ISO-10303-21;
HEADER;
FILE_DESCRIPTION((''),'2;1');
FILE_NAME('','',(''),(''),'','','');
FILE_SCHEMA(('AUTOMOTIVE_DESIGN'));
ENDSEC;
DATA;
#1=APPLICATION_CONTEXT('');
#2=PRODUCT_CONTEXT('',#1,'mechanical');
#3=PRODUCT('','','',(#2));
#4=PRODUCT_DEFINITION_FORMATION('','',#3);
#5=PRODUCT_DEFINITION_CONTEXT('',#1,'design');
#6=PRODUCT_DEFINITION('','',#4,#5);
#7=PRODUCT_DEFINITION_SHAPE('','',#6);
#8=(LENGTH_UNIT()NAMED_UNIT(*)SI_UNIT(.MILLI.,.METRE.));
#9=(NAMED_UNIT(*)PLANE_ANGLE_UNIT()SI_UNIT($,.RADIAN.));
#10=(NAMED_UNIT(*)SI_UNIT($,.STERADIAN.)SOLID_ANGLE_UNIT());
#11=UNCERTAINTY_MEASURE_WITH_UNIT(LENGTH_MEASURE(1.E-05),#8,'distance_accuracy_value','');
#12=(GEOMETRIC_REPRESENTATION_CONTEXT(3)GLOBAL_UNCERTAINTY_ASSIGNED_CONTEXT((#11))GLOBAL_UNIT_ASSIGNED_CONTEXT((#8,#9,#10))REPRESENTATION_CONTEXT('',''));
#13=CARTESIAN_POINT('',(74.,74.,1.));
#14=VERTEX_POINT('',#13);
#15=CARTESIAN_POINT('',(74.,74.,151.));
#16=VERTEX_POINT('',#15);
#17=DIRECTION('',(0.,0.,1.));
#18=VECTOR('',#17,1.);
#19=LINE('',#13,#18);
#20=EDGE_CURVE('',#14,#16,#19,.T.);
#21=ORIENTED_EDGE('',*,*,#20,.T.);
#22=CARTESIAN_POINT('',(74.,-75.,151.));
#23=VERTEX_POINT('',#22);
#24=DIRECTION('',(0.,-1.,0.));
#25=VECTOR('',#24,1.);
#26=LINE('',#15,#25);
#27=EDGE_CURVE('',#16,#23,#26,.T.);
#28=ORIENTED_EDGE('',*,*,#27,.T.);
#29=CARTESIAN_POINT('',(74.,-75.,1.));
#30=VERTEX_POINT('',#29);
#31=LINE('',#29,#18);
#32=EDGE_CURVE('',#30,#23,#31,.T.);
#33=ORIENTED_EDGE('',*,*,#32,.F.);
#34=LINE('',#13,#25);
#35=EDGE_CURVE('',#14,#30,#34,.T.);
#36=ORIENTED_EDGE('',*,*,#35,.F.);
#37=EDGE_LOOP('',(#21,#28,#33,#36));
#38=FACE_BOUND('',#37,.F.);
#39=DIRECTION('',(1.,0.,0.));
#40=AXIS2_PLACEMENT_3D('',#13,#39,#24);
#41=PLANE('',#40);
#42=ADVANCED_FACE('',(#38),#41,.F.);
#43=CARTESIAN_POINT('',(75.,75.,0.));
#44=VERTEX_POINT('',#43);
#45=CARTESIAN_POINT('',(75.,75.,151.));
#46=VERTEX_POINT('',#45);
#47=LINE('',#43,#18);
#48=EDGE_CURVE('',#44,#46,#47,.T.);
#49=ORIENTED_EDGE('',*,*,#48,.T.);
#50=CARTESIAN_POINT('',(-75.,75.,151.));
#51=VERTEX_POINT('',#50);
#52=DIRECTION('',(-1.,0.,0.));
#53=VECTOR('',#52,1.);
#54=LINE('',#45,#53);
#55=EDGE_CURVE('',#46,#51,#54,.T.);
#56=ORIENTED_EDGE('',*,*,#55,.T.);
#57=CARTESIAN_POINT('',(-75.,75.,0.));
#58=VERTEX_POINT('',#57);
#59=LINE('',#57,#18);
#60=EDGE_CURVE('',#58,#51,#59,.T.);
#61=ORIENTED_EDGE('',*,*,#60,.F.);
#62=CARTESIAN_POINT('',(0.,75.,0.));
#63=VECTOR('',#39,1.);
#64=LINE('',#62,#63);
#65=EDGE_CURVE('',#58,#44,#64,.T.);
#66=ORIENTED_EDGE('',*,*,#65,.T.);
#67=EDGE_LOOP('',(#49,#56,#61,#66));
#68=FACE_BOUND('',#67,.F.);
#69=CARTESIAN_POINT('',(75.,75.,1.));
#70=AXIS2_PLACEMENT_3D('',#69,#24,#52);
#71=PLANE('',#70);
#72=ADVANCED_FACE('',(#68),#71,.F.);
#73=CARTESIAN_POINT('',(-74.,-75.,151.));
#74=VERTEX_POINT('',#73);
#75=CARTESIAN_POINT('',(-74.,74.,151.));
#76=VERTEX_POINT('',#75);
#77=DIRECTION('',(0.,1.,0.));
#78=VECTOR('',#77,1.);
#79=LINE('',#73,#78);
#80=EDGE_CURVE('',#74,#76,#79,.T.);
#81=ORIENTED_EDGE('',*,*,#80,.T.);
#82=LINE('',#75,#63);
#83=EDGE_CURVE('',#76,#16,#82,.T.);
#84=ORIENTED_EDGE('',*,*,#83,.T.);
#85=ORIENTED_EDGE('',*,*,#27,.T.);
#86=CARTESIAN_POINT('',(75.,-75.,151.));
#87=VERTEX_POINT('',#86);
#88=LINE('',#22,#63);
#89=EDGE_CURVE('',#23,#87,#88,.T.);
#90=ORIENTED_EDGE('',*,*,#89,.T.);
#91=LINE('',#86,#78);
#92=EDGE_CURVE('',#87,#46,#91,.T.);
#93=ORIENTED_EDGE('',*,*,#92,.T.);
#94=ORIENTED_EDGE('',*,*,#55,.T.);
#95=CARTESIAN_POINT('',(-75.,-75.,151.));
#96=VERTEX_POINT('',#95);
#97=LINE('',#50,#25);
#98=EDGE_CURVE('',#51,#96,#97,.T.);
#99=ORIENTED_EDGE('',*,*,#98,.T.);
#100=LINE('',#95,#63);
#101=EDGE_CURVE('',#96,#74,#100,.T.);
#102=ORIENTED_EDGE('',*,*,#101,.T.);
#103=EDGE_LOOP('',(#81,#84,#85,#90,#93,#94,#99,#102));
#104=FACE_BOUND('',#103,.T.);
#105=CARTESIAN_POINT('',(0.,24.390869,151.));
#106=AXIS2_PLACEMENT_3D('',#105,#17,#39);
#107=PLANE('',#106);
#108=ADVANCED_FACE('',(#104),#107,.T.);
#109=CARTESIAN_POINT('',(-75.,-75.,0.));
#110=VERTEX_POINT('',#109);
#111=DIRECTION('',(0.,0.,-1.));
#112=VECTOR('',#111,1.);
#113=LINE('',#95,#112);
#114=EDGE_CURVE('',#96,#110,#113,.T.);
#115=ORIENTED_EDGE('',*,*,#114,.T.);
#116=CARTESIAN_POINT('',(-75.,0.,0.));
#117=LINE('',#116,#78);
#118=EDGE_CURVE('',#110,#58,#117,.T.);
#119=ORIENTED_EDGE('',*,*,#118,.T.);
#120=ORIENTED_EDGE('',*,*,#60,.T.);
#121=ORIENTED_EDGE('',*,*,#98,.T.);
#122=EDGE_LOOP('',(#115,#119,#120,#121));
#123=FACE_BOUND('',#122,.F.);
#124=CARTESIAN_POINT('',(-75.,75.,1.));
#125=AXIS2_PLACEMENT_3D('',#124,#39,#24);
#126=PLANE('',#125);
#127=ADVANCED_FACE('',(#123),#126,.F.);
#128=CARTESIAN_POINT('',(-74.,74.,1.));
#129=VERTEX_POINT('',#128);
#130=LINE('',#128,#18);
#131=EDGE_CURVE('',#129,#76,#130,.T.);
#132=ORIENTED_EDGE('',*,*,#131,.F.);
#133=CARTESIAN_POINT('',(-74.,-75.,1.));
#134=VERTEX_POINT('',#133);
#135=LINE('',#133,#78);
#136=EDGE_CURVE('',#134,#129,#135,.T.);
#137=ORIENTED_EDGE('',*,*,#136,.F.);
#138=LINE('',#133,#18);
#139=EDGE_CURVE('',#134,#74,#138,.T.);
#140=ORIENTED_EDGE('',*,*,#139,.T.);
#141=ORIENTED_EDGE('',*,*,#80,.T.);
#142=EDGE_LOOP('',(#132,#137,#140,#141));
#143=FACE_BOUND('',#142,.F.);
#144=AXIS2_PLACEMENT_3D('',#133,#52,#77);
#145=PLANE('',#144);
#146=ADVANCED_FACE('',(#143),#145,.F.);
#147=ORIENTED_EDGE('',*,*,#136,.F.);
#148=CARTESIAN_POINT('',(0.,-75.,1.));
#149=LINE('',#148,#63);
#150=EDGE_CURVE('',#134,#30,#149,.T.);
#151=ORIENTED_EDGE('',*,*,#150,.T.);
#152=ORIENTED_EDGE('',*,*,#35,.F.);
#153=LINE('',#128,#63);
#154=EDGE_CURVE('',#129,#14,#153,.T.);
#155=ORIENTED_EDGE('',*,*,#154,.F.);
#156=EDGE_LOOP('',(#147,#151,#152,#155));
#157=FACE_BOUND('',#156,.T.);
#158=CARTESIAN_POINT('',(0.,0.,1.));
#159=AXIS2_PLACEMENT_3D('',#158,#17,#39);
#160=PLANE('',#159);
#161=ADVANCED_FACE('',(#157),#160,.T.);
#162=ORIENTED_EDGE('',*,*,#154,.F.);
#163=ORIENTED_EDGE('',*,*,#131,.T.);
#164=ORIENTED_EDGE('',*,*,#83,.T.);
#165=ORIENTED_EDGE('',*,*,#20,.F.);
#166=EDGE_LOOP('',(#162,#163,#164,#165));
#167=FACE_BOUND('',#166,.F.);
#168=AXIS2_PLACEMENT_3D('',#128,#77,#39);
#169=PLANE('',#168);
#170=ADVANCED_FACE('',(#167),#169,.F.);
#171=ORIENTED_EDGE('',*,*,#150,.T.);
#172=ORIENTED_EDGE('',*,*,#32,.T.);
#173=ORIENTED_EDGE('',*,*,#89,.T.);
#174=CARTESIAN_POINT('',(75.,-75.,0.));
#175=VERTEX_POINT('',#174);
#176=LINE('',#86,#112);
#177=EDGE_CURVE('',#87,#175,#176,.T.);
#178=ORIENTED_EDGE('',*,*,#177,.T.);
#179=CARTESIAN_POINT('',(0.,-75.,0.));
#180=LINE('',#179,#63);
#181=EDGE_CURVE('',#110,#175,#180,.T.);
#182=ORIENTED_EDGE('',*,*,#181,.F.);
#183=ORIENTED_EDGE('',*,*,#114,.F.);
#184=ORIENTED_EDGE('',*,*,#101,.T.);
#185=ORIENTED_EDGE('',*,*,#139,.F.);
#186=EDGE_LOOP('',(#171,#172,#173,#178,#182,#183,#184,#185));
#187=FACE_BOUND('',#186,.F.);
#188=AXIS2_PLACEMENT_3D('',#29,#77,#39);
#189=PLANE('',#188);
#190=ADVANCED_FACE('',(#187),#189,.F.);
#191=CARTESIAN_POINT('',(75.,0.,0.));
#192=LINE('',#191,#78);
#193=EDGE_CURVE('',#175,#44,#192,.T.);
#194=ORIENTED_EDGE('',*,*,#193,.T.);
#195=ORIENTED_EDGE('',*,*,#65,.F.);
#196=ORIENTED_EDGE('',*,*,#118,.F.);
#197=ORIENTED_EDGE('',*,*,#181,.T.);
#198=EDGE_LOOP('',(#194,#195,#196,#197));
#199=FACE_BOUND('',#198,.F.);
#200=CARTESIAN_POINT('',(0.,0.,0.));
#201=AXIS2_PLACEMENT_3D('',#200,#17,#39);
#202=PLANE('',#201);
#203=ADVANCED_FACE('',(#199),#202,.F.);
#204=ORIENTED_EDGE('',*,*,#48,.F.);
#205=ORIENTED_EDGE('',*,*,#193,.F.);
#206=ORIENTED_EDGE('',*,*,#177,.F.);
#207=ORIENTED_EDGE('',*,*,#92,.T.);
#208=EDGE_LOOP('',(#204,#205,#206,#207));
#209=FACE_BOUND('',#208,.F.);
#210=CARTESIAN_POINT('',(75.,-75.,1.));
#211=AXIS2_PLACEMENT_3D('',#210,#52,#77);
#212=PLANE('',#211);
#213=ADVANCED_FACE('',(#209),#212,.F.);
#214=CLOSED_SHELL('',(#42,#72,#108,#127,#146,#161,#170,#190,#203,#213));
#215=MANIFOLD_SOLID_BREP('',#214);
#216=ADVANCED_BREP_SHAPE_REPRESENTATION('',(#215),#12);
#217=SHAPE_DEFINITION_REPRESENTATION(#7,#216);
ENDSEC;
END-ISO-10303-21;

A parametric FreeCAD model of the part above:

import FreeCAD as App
import Part
import Sketcher

V = App.Vector

doc = App.newDocument("Part")
body = doc.addObject("PartDesign::Body", "Body")

# Sketch on XY plane
sketch1 = body.newObject("Sketcher::SketchObject", "Sketch")
sketch1.AttachmentSupport = (doc.getObject("XY_Plane"), [""])
sketch1.MapMode = "FlatFace"
sketch1.addGeometry([
    Part.LineSegment(V(-75, 75, 0), V(-75, -75, 0)),
    Part.LineSegment(V(-75, -75, 0), V(75, -75, 0)),
    Part.LineSegment(V(75, -75, 0), V(75, 75, 0)),
    Part.LineSegment(V(75, 75, 0), V(-75, 75, 0)),
], False)
sketch1.addConstraint([
    Sketcher.Constraint("Coincident", 0, 2, 1, 1),
    Sketcher.Constraint("Coincident", 1, 2, 2, 1),
    Sketcher.Constraint("Coincident", 2, 2, 3, 1),
    Sketcher.Constraint("Coincident", 3, 2, 0, 1),
    Sketcher.Constraint("Vertical", 0),
    Sketcher.Constraint("Horizontal", 1),
    Sketcher.Constraint("Vertical", 2),
    Sketcher.Constraint("Horizontal", 3),
    Sketcher.Constraint("Symmetric", 0, 2, 2, 2, -1, 1),
    Sketcher.Constraint("Equal", 3, 0),
    Sketcher.Constraint("DistanceX", 1, 1, 1, 2, 150.0),
])
pad1 = body.newObject("PartDesign::Pad", "Pad")
pad1.Profile = sketch1
pad1.Length = 1

# Sketch on XY plane
sketch2 = body.newObject("Sketcher::SketchObject", "Sketch001")
sketch2.AttachmentSupport = (doc.getObject("XY_Plane"), [""])
sketch2.MapMode = "FlatFace"
sketch2.AttachmentOffset = App.Placement(V(0, 0, 1), App.Rotation())
sketch2.addGeometry([
    Part.LineSegment(V(75, -75, 0), V(75, 75, 0)),  # 0
    Part.LineSegment(V(75, 75, 0), V(-75, 75, 0)),  # 1
    Part.LineSegment(V(-75, 75, 0), V(-75, -75, 0)),  # 2
    Part.LineSegment(V(-75, -75, 0), V(-74, -75, 0)),  # 3
    Part.LineSegment(V(-74, -75, 0), V(-74, 74, 0)),  # 4
    Part.LineSegment(V(-74, 74, 0), V(74, 74, 0)),  # 5
    Part.LineSegment(V(74, 74, 0), V(74, -75, 0)),  # 6
    Part.LineSegment(V(74, -75, 0), V(75, -75, 0)),  # 7
], False)
sketch2.addConstraint([
    Sketcher.Constraint("Coincident", 0, 2, 1, 1),
    Sketcher.Constraint("Coincident", 1, 2, 2, 1),
    Sketcher.Constraint("Coincident", 2, 2, 3, 1),
    Sketcher.Constraint("Coincident", 3, 2, 4, 1),
    Sketcher.Constraint("Coincident", 4, 2, 5, 1),
    Sketcher.Constraint("Coincident", 5, 2, 6, 1),
    Sketcher.Constraint("Coincident", 6, 2, 7, 1),
    Sketcher.Constraint("Coincident", 7, 2, 0, 1),
    Sketcher.Constraint("Vertical", 0),
    Sketcher.Constraint("Horizontal", 1),
    Sketcher.Constraint("Vertical", 2),
    Sketcher.Constraint("Horizontal", 3),
    Sketcher.Constraint("Vertical", 4),
    Sketcher.Constraint("Horizontal", 5),
    Sketcher.Constraint("Vertical", 6),
    Sketcher.Constraint("Horizontal", 7),
    Sketcher.Constraint("Symmetric", 0, 2, 2, 2, -1, 1),
    Sketcher.Constraint("Symmetric", 3, 2, 6, 2, -2),
    Sketcher.Constraint("Equal", 1, 0),
    Sketcher.Constraint("DistanceX", 1, 2, 1, 1, 150.0),
    Sketcher.Constraint("DistanceX", 3, 1, 3, 2, 1.0),
    Sketcher.Constraint("DistanceY", 4, 1, 4, 2, 149.0),
])
pad2 = body.newObject("PartDesign::Pad", "Pad001")
pad2.Profile = sketch2
pad2.Length = 150

doc.recompute()
